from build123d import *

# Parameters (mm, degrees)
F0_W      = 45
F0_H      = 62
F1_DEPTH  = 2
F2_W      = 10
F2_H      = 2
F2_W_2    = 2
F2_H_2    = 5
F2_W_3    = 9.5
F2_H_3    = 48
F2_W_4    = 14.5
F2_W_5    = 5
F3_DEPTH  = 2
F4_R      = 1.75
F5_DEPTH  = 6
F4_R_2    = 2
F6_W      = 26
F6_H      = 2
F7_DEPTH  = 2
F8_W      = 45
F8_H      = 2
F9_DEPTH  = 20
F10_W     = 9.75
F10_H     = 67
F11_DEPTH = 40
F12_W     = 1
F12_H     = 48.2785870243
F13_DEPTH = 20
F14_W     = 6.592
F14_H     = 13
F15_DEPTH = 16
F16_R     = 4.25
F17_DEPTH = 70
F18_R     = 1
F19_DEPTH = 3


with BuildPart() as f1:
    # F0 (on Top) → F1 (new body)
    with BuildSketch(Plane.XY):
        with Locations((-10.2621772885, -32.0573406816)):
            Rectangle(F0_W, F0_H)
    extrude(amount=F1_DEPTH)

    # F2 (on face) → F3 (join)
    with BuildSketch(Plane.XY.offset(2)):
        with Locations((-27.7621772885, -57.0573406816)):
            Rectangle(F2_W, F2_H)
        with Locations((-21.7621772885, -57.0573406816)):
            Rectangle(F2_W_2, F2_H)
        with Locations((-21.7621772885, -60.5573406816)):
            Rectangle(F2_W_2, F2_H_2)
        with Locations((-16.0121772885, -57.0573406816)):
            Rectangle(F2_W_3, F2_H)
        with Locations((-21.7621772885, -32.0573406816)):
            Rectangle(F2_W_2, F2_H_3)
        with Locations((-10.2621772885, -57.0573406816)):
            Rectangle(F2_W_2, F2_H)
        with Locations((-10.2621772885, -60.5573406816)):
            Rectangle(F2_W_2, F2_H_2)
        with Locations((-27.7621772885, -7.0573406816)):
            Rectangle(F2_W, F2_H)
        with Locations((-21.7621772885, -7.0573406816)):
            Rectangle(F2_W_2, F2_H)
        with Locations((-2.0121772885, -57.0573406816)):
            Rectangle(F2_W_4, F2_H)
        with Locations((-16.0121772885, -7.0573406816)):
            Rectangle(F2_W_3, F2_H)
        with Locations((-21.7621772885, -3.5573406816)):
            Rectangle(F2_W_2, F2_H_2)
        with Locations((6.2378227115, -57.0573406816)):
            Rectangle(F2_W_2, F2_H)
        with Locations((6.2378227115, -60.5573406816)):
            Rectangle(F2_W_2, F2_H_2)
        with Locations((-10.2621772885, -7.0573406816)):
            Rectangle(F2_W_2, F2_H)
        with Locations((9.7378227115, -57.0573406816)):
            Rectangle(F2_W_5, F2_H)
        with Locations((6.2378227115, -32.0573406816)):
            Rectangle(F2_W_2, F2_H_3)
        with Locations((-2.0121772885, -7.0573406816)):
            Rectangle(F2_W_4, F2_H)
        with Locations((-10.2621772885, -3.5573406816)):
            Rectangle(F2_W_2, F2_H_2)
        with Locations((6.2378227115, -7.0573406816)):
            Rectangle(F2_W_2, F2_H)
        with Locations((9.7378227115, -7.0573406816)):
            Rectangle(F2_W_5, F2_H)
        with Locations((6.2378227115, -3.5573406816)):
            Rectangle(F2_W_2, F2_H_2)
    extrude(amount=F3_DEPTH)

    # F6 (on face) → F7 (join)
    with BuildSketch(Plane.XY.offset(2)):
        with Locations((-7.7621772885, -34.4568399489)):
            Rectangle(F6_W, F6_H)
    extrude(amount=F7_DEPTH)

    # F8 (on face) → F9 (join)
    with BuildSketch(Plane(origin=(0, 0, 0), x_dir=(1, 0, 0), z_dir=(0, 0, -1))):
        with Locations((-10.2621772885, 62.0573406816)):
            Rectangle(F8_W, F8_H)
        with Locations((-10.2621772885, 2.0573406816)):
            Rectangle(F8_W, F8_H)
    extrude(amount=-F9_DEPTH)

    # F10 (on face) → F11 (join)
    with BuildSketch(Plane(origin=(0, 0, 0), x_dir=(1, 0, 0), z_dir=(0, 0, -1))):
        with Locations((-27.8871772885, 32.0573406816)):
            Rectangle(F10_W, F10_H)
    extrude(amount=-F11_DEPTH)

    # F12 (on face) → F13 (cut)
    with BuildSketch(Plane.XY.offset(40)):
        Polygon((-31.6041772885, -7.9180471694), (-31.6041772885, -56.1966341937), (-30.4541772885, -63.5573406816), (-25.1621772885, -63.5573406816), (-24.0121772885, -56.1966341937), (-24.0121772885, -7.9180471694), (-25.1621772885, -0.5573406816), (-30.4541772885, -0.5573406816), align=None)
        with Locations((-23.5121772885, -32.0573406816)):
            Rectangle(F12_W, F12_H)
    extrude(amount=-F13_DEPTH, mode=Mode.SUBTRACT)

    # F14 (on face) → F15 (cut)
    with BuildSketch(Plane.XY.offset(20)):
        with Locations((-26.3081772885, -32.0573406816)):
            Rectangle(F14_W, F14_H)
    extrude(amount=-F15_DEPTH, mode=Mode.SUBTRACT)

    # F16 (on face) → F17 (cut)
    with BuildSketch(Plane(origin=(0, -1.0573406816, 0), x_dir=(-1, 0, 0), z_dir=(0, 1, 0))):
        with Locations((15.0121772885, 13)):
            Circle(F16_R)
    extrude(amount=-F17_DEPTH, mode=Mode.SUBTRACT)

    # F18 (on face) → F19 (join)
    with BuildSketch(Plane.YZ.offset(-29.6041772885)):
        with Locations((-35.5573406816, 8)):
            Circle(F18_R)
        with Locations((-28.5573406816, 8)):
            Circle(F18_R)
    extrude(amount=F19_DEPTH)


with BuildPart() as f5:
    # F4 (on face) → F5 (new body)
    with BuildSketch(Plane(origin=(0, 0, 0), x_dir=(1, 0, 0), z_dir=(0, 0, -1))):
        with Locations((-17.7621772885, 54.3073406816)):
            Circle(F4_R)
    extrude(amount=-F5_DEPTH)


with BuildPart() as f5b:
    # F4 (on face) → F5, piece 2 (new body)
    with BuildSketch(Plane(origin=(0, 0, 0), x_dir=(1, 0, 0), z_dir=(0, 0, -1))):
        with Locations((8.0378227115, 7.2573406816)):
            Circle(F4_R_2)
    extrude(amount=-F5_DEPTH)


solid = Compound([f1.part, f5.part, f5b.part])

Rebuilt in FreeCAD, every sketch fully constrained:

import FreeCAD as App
import Part
import Sketcher
Q = App.Units.Quantity


def add_polygon(sketch, points):
    """Adds a closed chain of lines whose ends are joined by coincident constraints."""
    first, n = sketch.GeometryCount, len(points)
    for a, b in zip(points, points[1:] + points[:1]):
        sketch.addGeometry(Part.LineSegment(App.Vector(*a, 0), App.Vector(*b, 0)), False)
    for i in range(n):
        sketch.addConstraint(Sketcher.Constraint("Coincident", first + i, 2, first + (i + 1) % n, 1))

doc = App.newDocument("Part")
params = doc.addObject("Spreadsheet::Sheet", "Params")
for row, (alias, value) in enumerate([
    ("sketch1_width", "45 mm"),
    ("sketch1_height", "62 mm"),
    ("pad1_length", "2 mm"),
    ("sketch2_width", "5 mm"),
    ("sketch2_width2", "2 mm"),
    ("sketch2_width3", "10 mm"),
    ("sketch2_width4", "26 mm"),
    ("sketch2_height", "48 mm"),
    ("pad2_length", "2 mm"),
    ("sketch3_width", "26 mm"),
    ("sketch3_height", "2 mm"),
    ("pad3_length", "2 mm"),
    ("sketch4_width", "45 mm"),
    ("sketch4_height", "2 mm"),
    ("pad4_length", "20 mm"),
    ("sketch5_height", "67 mm"),
    ("sketch5_width", "9.75 mm"),
    ("pad5_length", "40 mm"),
    ("sketch6_width", "1 mm"),
    ("sketch6_length", "7.45 mm"),
    ("pocket1_length", "20 mm"),
    ("sketch7_height", "13 mm"),
    ("pocket2_length", "16 mm"),
    ("sketch8_diameter", "8.5 mm"),
    ("pocket3_length", "70 mm"),
    ("sketch9_diameter", "2 mm"),
    ("pad6_length", "3 mm"),
    ("sketch10_diameter", "3.5 mm"),
    ("pad7_length", "6 mm"),
    ("sketch11_diameter", "4 mm"),
    ("pad8_length", "6 mm"),
], start=1):
    params.set(f"A{row}", alias)
    params.set(f"B{row}", "=" + value)
    params.setAlias(f"B{row}", alias)

body = doc.addObject("PartDesign::Body", "Body")

# Sketch on XY plane
sketch1 = doc.addObject("Sketcher::SketchObject", "Sketch")
body.addObject(sketch1)
sketch1.AttachmentSupport = (doc.XY_Plane, [""])
sketch1.MapMode = "FlatFace"
add_polygon(sketch1, [(-32.762177, -1.057341), (-32.762177, -63.057341), (12.237823, -63.057341), (12.237823, -1.057341)])  # lines 0-3
sketch1.addConstraint(Sketcher.Constraint("Vertical", 0))
sketch1.addConstraint(Sketcher.Constraint("Horizontal", 1))
sketch1.addConstraint(Sketcher.Constraint("Vertical", 2))
sketch1.addConstraint(Sketcher.Constraint("Horizontal", 3))
sketch1.addConstraint(Sketcher.Constraint("DistanceX", 1, 1, 1, 2, Q("45 mm")))
sketch1.addConstraint(Sketcher.Constraint("DistanceY", 0, 2, 0, 1, Q("62 mm")))
sketch1.addConstraint(Sketcher.Constraint("DistanceY", 0, 2, -1, 1, Q("63.057341 mm")))
sketch1.addConstraint(Sketcher.Constraint("DistanceX", 0, 2, -1, 1, Q("32.762177 mm")))
sketch1.setExpression("Constraints[8]", "Params.sketch1_width")
sketch1.setExpression("Constraints[9]", "Params.sketch1_height")
pad1 = doc.addObject("PartDesign::Pad", "Pad")
body.addObject(pad1)
pad1.Profile = sketch1
pad1.setExpression("Length", "Params.pad1_length")

# Sketch on XY plane
sketch2 = doc.addObject("Sketcher::SketchObject", "Sketch001")
body.addObject(sketch2)
sketch2.AttachmentSupport = (doc.XY_Plane, [""])
sketch2.MapMode = "FlatFace"
sketch2.AttachmentOffset = App.Placement(App.Vector(0, 0, 2), App.Rotation())
add_polygon(sketch2, [(7.237823, -56.057341), (7.237823, -8.057341), (12.237823, -8.057341), (12.237823, -6.057341), (7.237823, -6.057341), (7.237823, -1.057341), (5.237823, -1.057341), (5.237823, -6.057341), (-9.262177, -6.057341), (-9.262177, -1.057341), (-11.262177, -1.057341), (-11.262177, -6.057341), (-20.762177, -6.057341), (-20.762177, -1.057341), (-22.762177, -1.057341), (-22.762177, -6.057341), (-32.762177, -6.057341), (-32.762177, -8.057341), (-22.762177, -8.057341), (-22.762177, -56.057341), (-32.762177, -56.057341), (-32.762177, -58.057341), (-22.762177, -58.057341), (-22.762177, -63.057341), (-20.762177, -63.057341), (-20.762177, -58.057341), (-11.262177, -58.057341), (-11.262177, -63.057341), (-9.262177, -63.057341), (-9.262177, -58.057341), (5.237823, -58.057341), (5.237823, -63.057341), (7.237823, -63.057341), (7.237823, -58.057341), (12.237823, -58.057341), (12.237823, -56.057341)])  # lines 0-35
add_polygon(sketch2, [(5.237823, -8.057341), (5.237823, -56.057341), (-20.762177, -56.057341), (-20.762177, -8.057341)])  # lines 36-39
sketch2.addConstraint(Sketcher.Constraint("Vertical", 0))
sketch2.addConstraint(Sketcher.Constraint("Horizontal", 1))
sketch2.addConstraint(Sketcher.Constraint("Vertical", 2))
sketch2.addConstraint(Sketcher.Constraint("Horizontal", 3))
sketch2.addConstraint(Sketcher.Constraint("Vertical", 4))
sketch2.addConstraint(Sketcher.Constraint("Horizontal", 5))
sketch2.addConstraint(Sketcher.Constraint("Vertical", 6))
sketch2.addConstraint(Sketcher.Constraint("Horizontal", 7))
sketch2.addConstraint(Sketcher.Constraint("Vertical", 8))
sketch2.addConstraint(Sketcher.Constraint("Horizontal", 9))
sketch2.addConstraint(Sketcher.Constraint("Vertical", 10))
sketch2.addConstraint(Sketcher.Constraint("Horizontal", 11))
sketch2.addConstraint(Sketcher.Constraint("Vertical", 12))
sketch2.addConstraint(Sketcher.Constraint("Horizontal", 13))
sketch2.addConstraint(Sketcher.Constraint("Vertical", 14))
sketch2.addConstraint(Sketcher.Constraint("Horizontal", 15))
sketch2.addConstraint(Sketcher.Constraint("Vertical", 16))
sketch2.addConstraint(Sketcher.Constraint("Horizontal", 17))
sketch2.addConstraint(Sketcher.Constraint("Vertical", 18))
sketch2.addConstraint(Sketcher.Constraint("Horizontal", 19))
sketch2.addConstraint(Sketcher.Constraint("Vertical", 20))
sketch2.addConstraint(Sketcher.Constraint("Horizontal", 21))
sketch2.addConstraint(Sketcher.Constraint("Vertical", 22))
sketch2.addConstraint(Sketcher.Constraint("Horizontal", 23))
sketch2.addConstraint(Sketcher.Constraint("Vertical", 24))
sketch2.addConstraint(Sketcher.Constraint("Horizontal", 25))
sketch2.addConstraint(Sketcher.Constraint("Vertical", 26))
sketch2.addConstraint(Sketcher.Constraint("Horizontal", 27))
sketch2.addConstraint(Sketcher.Constraint("Vertical", 28))
sketch2.addConstraint(Sketcher.Constraint("Horizontal", 29))
sketch2.addConstraint(Sketcher.Constraint("Vertical", 30))
sketch2.addConstraint(Sketcher.Constraint("Horizontal", 31))
sketch2.addConstraint(Sketcher.Constraint("Vertical", 32))
sketch2.addConstraint(Sketcher.Constraint("Horizontal", 33))
sketch2.addConstraint(Sketcher.Constraint("Vertical", 34))
sketch2.addConstraint(Sketcher.Constraint("Horizontal", 35))
sketch2.addConstraint(Sketcher.Constraint("Vertical", 36))
sketch2.addConstraint(Sketcher.Constraint("Horizontal", 37))
sketch2.addConstraint(Sketcher.Constraint("Vertical", 38))
sketch2.addConstraint(Sketcher.Constraint("Horizontal", 39))
sketch2.addConstraint(Sketcher.Constraint("Horizontal", 3, 2, 6, 2))
sketch2.addConstraint(Sketcher.Constraint("Horizontal", 5, 2, 8, 2))
sketch2.addConstraint(Sketcher.Constraint("Horizontal", 7, 2, 10, 2))
sketch2.addConstraint(Sketcher.Constraint("Horizontal", 9, 2, 12, 2))
sketch2.addConstraint(Sketcher.Constraint("Horizontal", 11, 2, 14, 2))
sketch2.addConstraint(Sketcher.Constraint("Horizontal", 1, 2, 16, 2))
sketch2.addConstraint(Sketcher.Constraint("Horizontal", 21, 2, 24, 2))
sketch2.addConstraint(Sketcher.Constraint("Horizontal", 23, 2, 26, 2))
sketch2.addConstraint(Sketcher.Constraint("Horizontal", 25, 2, 28, 2))
sketch2.addConstraint(Sketcher.Constraint("Horizontal", 27, 2, 30, 2))
sketch2.addConstraint(Sketcher.Constraint("Horizontal", 29, 2, 32, 2))
sketch2.addConstraint(Sketcher.Constraint("Horizontal", 19, 2, 34, 2))
sketch2.addConstraint(Sketcher.Constraint("Horizontal", 35, 2, 36, 2))
sketch2.addConstraint(Sketcher.Constraint("Horizontal", 17, 2, 38, 2))
sketch2.addConstraint(Sketcher.Constraint("Vertical", 0, 2, 3, 2))
sketch2.addConstraint(Sketcher.Constraint("Vertical", 14, 2, 17, 2))
sketch2.addConstraint(Sketcher.Constraint("Vertical", 16, 2, 19, 2))
sketch2.addConstraint(Sketcher.Constraint("Vertical", 18, 2, 21, 2))
sketch2.addConstraint(Sketcher.Constraint("Vertical", 12, 2, 23, 2))
sketch2.addConstraint(Sketcher.Constraint("Vertical", 10, 2, 25, 2))
sketch2.addConstraint(Sketcher.Constraint("Vertical", 8, 2, 27, 2))
sketch2.addConstraint(Sketcher.Constraint("Vertical", 6, 2, 29, 2))
sketch2.addConstraint(Sketcher.Constraint("Vertical", 4, 2, 31, 2))
sketch2.addConstraint(Sketcher.Constraint("Vertical", 2, 2, 33, 2))
sketch2.addConstraint(Sketcher.Constraint("Vertical", 30, 2, 36, 2))
sketch2.addConstraint(Sketcher.Constraint("Vertical", 24, 2, 37, 2))
sketch2.addConstraint(Sketcher.Constraint("Equal", 5, 9))
sketch2.addConstraint(Sketcher.Constraint("Equal", 9, 13))
sketch2.addConstraint(Sketcher.Constraint("Equal", 31, 2))
sketch2.addConstraint(Sketcher.Constraint("Equal", 35, 4))
sketch2.addConstraint(Sketcher.Constraint("Equal", 16, 20))
sketch2.addConstraint(Sketcher.Constraint("Equal", 14, 22))
sketch2.addConstraint(Sketcher.Constraint("DistanceX", 1, 1, 1, 2, Q("5 mm")))
sketch2.addConstraint(Sketcher.Constraint("DistanceX", 5, 2, 5, 1, Q("2 mm")))
sketch2.addConstraint(Sketcher.Constraint("DistanceX", 15, 2, 15, 1, Q("10 mm")))
sketch2.addConstraint(Sketcher.Constraint("DistanceX", 37, 2, 37, 1, Q("26 mm")))
sketch2.addConstraint(Sketcher.Constraint("DistanceY", 0, 1, 0, 2, Q("48 mm")))
sketch2.addConstraint(Sketcher.Constraint("DistanceX", 7, 2, 7, 1, Q("14.5 mm")))
sketch2.addConstraint(Sketcher.Constraint("DistanceY", 0, 2, -1, 1, Q("8.057341 mm")))
sketch2.addConstraint(Sketcher.Constraint("DistanceX", -1, 1, 0, 2, Q("7.237823 mm")))
sketch2.setExpression("Constraints[112]", "Params.sketch2_width")
sketch2.setExpression("Constraints[113]", "Params.sketch2_width2")
sketch2.setExpression("Constraints[114]", "Params.sketch2_width3")
sketch2.setExpression("Constraints[115]", "Params.sketch2_width4")
sketch2.setExpression("Constraints[116]", "Params.sketch2_height")
pad2 = doc.addObject("PartDesign::Pad", "Pad001")
body.addObject(pad2)
pad2.Profile = sketch2
pad2.setExpression("Length", "Params.pad2_length")

# Sketch on XY plane
sketch3 = doc.addObject("Sketcher::SketchObject", "Sketch002")
body.addObject(sketch3)
sketch3.AttachmentSupport = (doc.XY_Plane, [""])
sketch3.MapMode = "FlatFace"
sketch3.AttachmentOffset = App.Placement(App.Vector(0, 0, 2), App.Rotation())
add_polygon(sketch3, [(-20.762177, -33.45684), (-20.762177, -35.45684), (5.237823, -35.45684), (5.237823, -33.45684)])  # lines 0-3
sketch3.addConstraint(Sketcher.Constraint("Vertical", 0))
sketch3.addConstraint(Sketcher.Constraint("Horizontal", 1))
sketch3.addConstraint(Sketcher.Constraint("Vertical", 2))
sketch3.addConstraint(Sketcher.Constraint("Horizontal", 3))
sketch3.addConstraint(Sketcher.Constraint("DistanceX", 1, 1, 1, 2, Q("26 mm")))
sketch3.addConstraint(Sketcher.Constraint("DistanceY", 0, 2, 0, 1, Q("2 mm")))
sketch3.addConstraint(Sketcher.Constraint("DistanceY", 0, 2, -1, 1, Q("35.45684 mm")))
sketch3.addConstraint(Sketcher.Constraint("DistanceX", 0, 2, -1, 1, Q("20.762177 mm")))
sketch3.setExpression("Constraints[8]", "Params.sketch3_width")
sketch3.setExpression("Constraints[9]", "Params.sketch3_height")
pad3 = doc.addObject("PartDesign::Pad", "Pad002")
body.addObject(pad3)
pad3.Profile = sketch3
pad3.setExpression("Length", "Params.pad3_length")

# Sketch on XY plane
sketch4 = doc.addObject("Sketcher::SketchObject", "Sketch003")
body.addObject(sketch4)
sketch4.AttachmentSupport = (doc.XY_Plane, [""])
sketch4.MapMode = "FlatFace"
add_polygon(sketch4, [(-32.762177, -63.057341), (-32.762177, -61.057341), (12.237823, -61.057341), (12.237823, -63.057341)])  # lines 0-3
add_polygon(sketch4, [(-32.762177, -3.057341), (-32.762177, -1.057341), (12.237823, -1.057341), (12.237823, -3.057341)])  # lines 4-7
sketch4.addConstraint(Sketcher.Constraint("Vertical", 0))
sketch4.addConstraint(Sketcher.Constraint("Horizontal", 1))
sketch4.addConstraint(Sketcher.Constraint("Vertical", 2))
sketch4.addConstraint(Sketcher.Constraint("Horizontal", 3))
sketch4.addConstraint(Sketcher.Constraint("Vertical", 4))
sketch4.addConstraint(Sketcher.Constraint("Horizontal", 5))
sketch4.addConstraint(Sketcher.Constraint("Vertical", 6))
sketch4.addConstraint(Sketcher.Constraint("Horizontal", 7))
sketch4.addConstraint(Sketcher.Constraint("Vertical", 3, 2, 4, 2))
sketch4.addConstraint(Sketcher.Constraint("Vertical", 2, 2, 5, 2))
sketch4.addConstraint(Sketcher.Constraint("Equal", 2, 4))
sketch4.addConstraint(Sketcher.Constraint("DistanceX", 1, 1, 1, 2, Q("45 mm")))
sketch4.addConstraint(Sketcher.Constraint("DistanceY", 0, 1, 0, 2, Q("2 mm")))
sketch4.addConstraint(Sketcher.Constraint("DistanceY", 0, 2, 4, 2, Q("60 mm")))
sketch4.addConstraint(Sketcher.Constraint("DistanceY", 0, 2, -1, 1, Q("61.057341 mm")))
sketch4.addConstraint(Sketcher.Constraint("DistanceX", 0, 2, -1, 1, Q("32.762177 mm")))
sketch4.setExpression("Constraints[19]", "Params.sketch4_width")
sketch4.setExpression("Constraints[20]", "Params.sketch4_height")
pad4 = doc.addObject("PartDesign::Pad", "Pad003")
body.addObject(pad4)
pad4.Profile = sketch4
pad4.setExpression("Length", "Params.pad4_length")

# Sketch on XY plane
sketch5 = doc.addObject("Sketcher::SketchObject", "Sketch004")
body.addObject(sketch5)
sketch5.AttachmentSupport = (doc.XY_Plane, [""])
sketch5.MapMode = "FlatFace"
add_polygon(sketch5, [(-32.762177, -65.557341), (-32.762177, 1.442659), (-23.012177, 1.442659), (-23.012177, -65.557341)])  # lines 0-3
sketch5.addConstraint(Sketcher.Constraint("Vertical", 0))
sketch5.addConstraint(Sketcher.Constraint("Horizontal", 1))
sketch5.addConstraint(Sketcher.Constraint("Vertical", 2))
sketch5.addConstraint(Sketcher.Constraint("Horizontal", 3))
sketch5.addConstraint(Sketcher.Constraint("DistanceY", 0, 1, 0, 2, Q("67 mm")))
sketch5.addConstraint(Sketcher.Constraint("DistanceX", 1, 1, 1, 2, Q("9.75 mm")))
sketch5.addConstraint(Sketcher.Constraint("DistanceY", -1, 1, 0, 2, Q("1.442659 mm")))
sketch5.addConstraint(Sketcher.Constraint("DistanceX", 0, 2, -1, 1, Q("32.762177 mm")))
sketch5.setExpression("Constraints[8]", "Params.sketch5_height")
sketch5.setExpression("Constraints[9]", "Params.sketch5_width")
pad5 = doc.addObject("PartDesign::Pad", "Pad004")
body.addObject(pad5)
pad5.Profile = sketch5
pad5.setExpression("Length", "Params.pad5_length")

# Sketch on XY plane
sketch6 = doc.addObject("Sketcher::SketchObject", "Sketch005")
body.addObject(sketch6)
sketch6.AttachmentSupport = (doc.XY_Plane, [""])
sketch6.MapMode = "FlatFace"
sketch6.AttachmentOffset = App.Placement(App.Vector(0, 0, 40), App.Rotation())
add_polygon(sketch6, [(-31.604177, -7.918047), (-31.604177, -56.196634), (-30.454177, -63.557341), (-25.162177, -63.557341), (-24.012177, -56.196634), (-23.012177, -56.196634), (-23.012177, -7.918047), (-24.012177, -7.918047), (-25.162177, -0.557341), (-30.454177, -0.557341)])  # lines 0-9
sketch6.addConstraint(Sketcher.Constraint("Vertical", 0))
sketch6.addConstraint(Sketcher.Constraint("Horizontal", 2))
sketch6.addConstraint(Sketcher.Constraint("Horizontal", 4))
sketch6.addConstraint(Sketcher.Constraint("Vertical", 5))
sketch6.addConstraint(Sketcher.Constraint("Horizontal", 6))
sketch6.addConstraint(Sketcher.Constraint("Horizontal", 8))
sketch6.addConstraint(Sketcher.Constraint("Parallel", 1, 7))
sketch6.addConstraint(Sketcher.Constraint("Parallel", 3, 9))
sketch6.addConstraint(Sketcher.Constraint("Horizontal", 0, 2, 3, 2))
sketch6.addConstraint(Sketcher.Constraint("Horizontal", 6, 2, 9, 2))
sketch6.addConstraint(Sketcher.Constraint("Vertical", 3, 2, 6, 2))
sketch6.addConstraint(Sketcher.Constraint("Vertical", 2, 2, 7, 2))
sketch6.addConstraint(Sketcher.Constraint("Vertical", 1, 2, 8, 2))
sketch6.addConstraint(Sketcher.Constraint("DistanceX", 4, 1, 4, 2, Q("1 mm")))
sketch6.addConstraint(Sketcher.Constraint("Distance", 1, Q("7.45 mm")))
sketch6.addConstraint(Sketcher.Constraint("DistanceX", 2, 1, 2, 2, Q("5.292 mm")))
sketch6.addConstraint(Sketcher.Constraint("DistanceX", 0, 2, 1, 2, Q("1.15 mm")))
sketch6.addConstraint(Sketcher.Constraint("DistanceY", 0, 2, 0, 1, Q("48.278587 mm")))
sketch6.addConstraint(Sketcher.Constraint("DistanceY", 1, 2, -1, 1, Q("63.557341 mm")))
sketch6.addConstraint(Sketcher.Constraint("DistanceX", 0, 2, -1, 1, Q("31.604177 mm")))
sketch6.setExpression("Constraints[23]", "Params.sketch6_width")
sketch6.setExpression("Constraints[24]", "Params.sketch6_length")
pocket1 = doc.addObject("PartDesign::Pocket", "Pocket")
body.addObject(pocket1)
pocket1.Profile = sketch6
pocket1.setExpression("Length", "Params.pocket1_length")

# Sketch on XY plane
sketch7 = doc.addObject("Sketcher::SketchObject", "Sketch006")
body.addObject(sketch7)
sketch7.AttachmentSupport = (doc.XY_Plane, [""])
sketch7.MapMode = "FlatFace"
sketch7.AttachmentOffset = App.Placement(App.Vector(0, 0, 20), App.Rotation())
add_polygon(sketch7, [(-29.604177, -25.557341), (-29.604177, -38.557341), (-23.012177, -38.557341), (-23.012177, -25.557341)])  # lines 0-3
sketch7.addConstraint(Sketcher.Constraint("Vertical", 0))
sketch7.addConstraint(Sketcher.Constraint("Horizontal", 1))
sketch7.addConstraint(Sketcher.Constraint("Vertical", 2))
sketch7.addConstraint(Sketcher.Constraint("Horizontal", 3))
sketch7.addConstraint(Sketcher.Constraint("DistanceY", 0, 2, 0, 1, Q("13 mm")))
sketch7.addConstraint(Sketcher.Constraint("DistanceX", 1, 1, 1, 2, Q("6.592 mm")))
sketch7.addConstraint(Sketcher.Constraint("DistanceY", 0, 2, -1, 1, Q("38.557341 mm")))
sketch7.addConstraint(Sketcher.Constraint("DistanceX", 0, 2, -1, 1, Q("29.604177 mm")))
sketch7.setExpression("Constraints[8]", "Params.sketch7_height")
pocket2 = doc.addObject("PartDesign::Pocket", "Pocket001")
body.addObject(pocket2)
pocket2.Profile = sketch7
pocket2.setExpression("Length", "Params.pocket2_length")

# Sketch on XZ plane
sketch8 = doc.addObject("Sketcher::SketchObject", "Sketch007")
body.addObject(sketch8)
sketch8.AttachmentSupport = (doc.XZ_Plane, [""])
sketch8.MapMode = "FlatFace"
sketch8.AttachmentOffset = App.Placement(App.Vector(0, 0, 1.057341), App.Rotation())
sketch8.addGeometry(Part.Circle(App.Vector(-15.012177, 13, 0), App.Vector(0, 0, 1), 4.25), False)
sketch8.addConstraint(Sketcher.Constraint("Diameter", 0, Q("8.5 mm")))
sketch8.addConstraint(Sketcher.Constraint("DistanceY", -1, 1, 0, 3, Q("13 mm")))
sketch8.addConstraint(Sketcher.Constraint("DistanceX", 0, 3, -1, 1, Q("15.012177 mm")))
sketch8.setExpression("Constraints[0]", "Params.sketch8_diameter")
pocket3 = doc.addObject("PartDesign::Pocket", "Pocket002")
body.addObject(pocket3)
pocket3.Profile = sketch8
pocket3.setExpression("Length", "Params.pocket3_length")
pocket3.Reversed = True

# Sketch on YZ plane
sketch9 = doc.addObject("Sketcher::SketchObject", "Sketch008")
body.addObject(sketch9)
sketch9.AttachmentSupport = (doc.YZ_Plane, [""])
sketch9.MapMode = "FlatFace"
sketch9.AttachmentOffset = App.Placement(App.Vector(0, 0, -29.604177), App.Rotation())
sketch9.addGeometry(Part.Circle(App.Vector(-35.557341, 8, 0), App.Vector(0, 0, 1), 1), False)
sketch9.addGeometry(Part.Circle(App.Vector(-28.557341, 8, 0), App.Vector(0, 0, 1), 1), False)
sketch9.addConstraint(Sketcher.Constraint("Equal", 0, 1))
sketch9.addConstraint(Sketcher.Constraint("Horizontal", 0, 3, 1, 3))
sketch9.addConstraint(Sketcher.Constraint("Diameter", 0, Q("2 mm")))
sketch9.addConstraint(Sketcher.Constraint("DistanceY", -1, 1, 0, 3, Q("8 mm")))
sketch9.addConstraint(Sketcher.Constraint("DistanceX", 0, 3, 1, 3, Q("7 mm")))
sketch9.addConstraint(Sketcher.Constraint("DistanceX", 0, 3, -1, 1, Q("35.557341 mm")))
sketch9.setExpression("Constraints[2]", "Params.sketch9_diameter")
pad6 = doc.addObject("PartDesign::Pad", "Pad005")
body.addObject(pad6)
pad6.Profile = sketch9
pad6.setExpression("Length", "Params.pad6_length")
body2 = doc.addObject("PartDesign::Body", "Body001")

# Sketch on XY plane
sketch10 = doc.addObject("Sketcher::SketchObject", "Sketch009")
body2.addObject(sketch10)
sketch10.AttachmentSupport = (doc.getObject("XY_Plane001"), [""])
sketch10.MapMode = "FlatFace"
sketch10.addGeometry(Part.Circle(App.Vector(-17.762177, -54.307341, 0), App.Vector(0, 0, 1), 1.75), False)
sketch10.addConstraint(Sketcher.Constraint("Diameter", 0, Q("3.5 mm")))
sketch10.addConstraint(Sketcher.Constraint("DistanceY", 0, 3, -1, 1, Q("54.307341 mm")))
sketch10.addConstraint(Sketcher.Constraint("DistanceX", 0, 3, -1, 1, Q("17.762177 mm")))
sketch10.setExpression("Constraints[0]", "Params.sketch10_diameter")
pad7 = doc.addObject("PartDesign::Pad", "Pad006")
body2.addObject(pad7)
pad7.Profile = sketch10
pad7.setExpression("Length", "Params.pad7_length")
body3 = doc.addObject("PartDesign::Body", "Body002")

# Sketch on XY plane
sketch11 = doc.addObject("Sketcher::SketchObject", "Sketch010")
body3.addObject(sketch11)
sketch11.AttachmentSupport = (doc.getObject("XY_Plane002"), [""])
sketch11.MapMode = "FlatFace"
sketch11.addGeometry(Part.Circle(App.Vector(8.037823, -7.257341, 0), App.Vector(0, 0, 1), 2), False)
sketch11.addConstraint(Sketcher.Constraint("Diameter", 0, Q("4 mm")))
sketch11.addConstraint(Sketcher.Constraint("DistanceY", 0, 3, -1, 1, Q("7.257341 mm")))
sketch11.addConstraint(Sketcher.Constraint("DistanceX", -1, 1, 0, 3, Q("8.037823 mm")))
sketch11.setExpression("Constraints[0]", "Params.sketch11_diameter")
pad8 = doc.addObject("PartDesign::Pad", "Pad007")
body3.addObject(pad8)
pad8.Profile = sketch11
pad8.setExpression("Length", "Params.pad8_length")

doc.recompute()
